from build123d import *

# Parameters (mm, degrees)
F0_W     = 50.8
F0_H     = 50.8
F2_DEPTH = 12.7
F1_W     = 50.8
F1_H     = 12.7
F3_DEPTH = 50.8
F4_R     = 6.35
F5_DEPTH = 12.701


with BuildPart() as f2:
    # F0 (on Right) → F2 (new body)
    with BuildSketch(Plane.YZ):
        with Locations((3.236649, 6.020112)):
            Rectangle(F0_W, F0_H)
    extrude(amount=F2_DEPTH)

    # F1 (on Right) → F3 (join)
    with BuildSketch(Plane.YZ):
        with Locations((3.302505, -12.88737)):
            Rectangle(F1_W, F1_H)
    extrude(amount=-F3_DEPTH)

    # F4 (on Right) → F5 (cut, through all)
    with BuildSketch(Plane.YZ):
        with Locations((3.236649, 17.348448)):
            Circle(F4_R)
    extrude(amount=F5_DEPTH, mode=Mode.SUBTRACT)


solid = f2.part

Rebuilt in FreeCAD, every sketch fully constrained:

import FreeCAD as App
import Part
import Sketcher
Q = App.Units.Quantity

doc = App.newDocument("Part")
body = doc.addObject("PartDesign::Body", "Body")

# Sketch on YZ plane
sketch1 = doc.addObject("Sketcher::SketchObject", "Sketch")
body.addObject(sketch1)
sketch1.AttachmentSupport = (doc.YZ_Plane, [""])
sketch1.MapMode = "FlatFace"
sketch1.addGeometry([
    Part.LineSegment(App.Vector(-22.163351, 31.420112, 0), App.Vector(-22.163351, -19.379888, 0)),
    Part.LineSegment(App.Vector(-22.163351, -19.379888, 0), App.Vector(28.636649, -19.379888, 0)),
    Part.LineSegment(App.Vector(28.636649, -19.379888, 0), App.Vector(28.636649, 31.420112, 0)),
    Part.LineSegment(App.Vector(28.636649, 31.420112, 0), App.Vector(-22.163351, 31.420112, 0)),
], False)
sketch1.addConstraint([
    Sketcher.Constraint("Coincident", 0, 2, 1, 1),
    Sketcher.Constraint("Coincident", 1, 2, 2, 1),
    Sketcher.Constraint("Coincident", 2, 2, 3, 1),
    Sketcher.Constraint("Coincident", 3, 2, 0, 1),
    Sketcher.Constraint("Vertical", 0),
    Sketcher.Constraint("Horizontal", 1),
    Sketcher.Constraint("Vertical", 2),
    Sketcher.Constraint("Horizontal", 3),
    Sketcher.Constraint("Equal", 3, 0),
    Sketcher.Constraint("DistanceX", 1, 1, 1, 2, Q("2 in")),
    Sketcher.Constraint("DistanceX", 0, 2, -1, 1, Q("22.163351 mm")),
    Sketcher.Constraint("DistanceY", 0, 2, -1, 1, Q("19.379888 mm")),
])
pad1 = doc.addObject("PartDesign::Pad", "Pad")
body.addObject(pad1)
pad1.Profile = sketch1
pad1.Length = Q("0.5 in")

# Sketch on YZ plane
sketch2 = doc.addObject("Sketcher::SketchObject", "Sketch001")
body.addObject(sketch2)
sketch2.AttachmentSupport = (doc.YZ_Plane, [""])
sketch2.MapMode = "FlatFace"
sketch2.addGeometry([
    Part.LineSegment(App.Vector(-22.097495, -6.53737, 0), App.Vector(-22.097495, -19.23737, 0)),
    Part.LineSegment(App.Vector(-22.097495, -19.23737, 0), App.Vector(28.702505, -19.23737, 0)),
    Part.LineSegment(App.Vector(28.702505, -19.23737, 0), App.Vector(28.702505, -6.53737, 0)),
    Part.LineSegment(App.Vector(28.702505, -6.53737, 0), App.Vector(-22.097495, -6.53737, 0)),
], False)
sketch2.addConstraint([
    Sketcher.Constraint("Coincident", 0, 2, 1, 1),
    Sketcher.Constraint("Coincident", 1, 2, 2, 1),
    Sketcher.Constraint("Coincident", 2, 2, 3, 1),
    Sketcher.Constraint("Coincident", 3, 2, 0, 1),
    Sketcher.Constraint("Vertical", 0),
    Sketcher.Constraint("Horizontal", 1),
    Sketcher.Constraint("Vertical", 2),
    Sketcher.Constraint("Horizontal", 3),
    Sketcher.Constraint("DistanceX", 1, 1, 1, 2, Q("2 in")),
    Sketcher.Constraint("DistanceY", 0, 2, 0, 1, Q("0.5 in")),
    Sketcher.Constraint("DistanceY", 0, 2, -1, 1, Q("19.23737 mm")),
    Sketcher.Constraint("DistanceX", 0, 2, -1, 1, Q("22.097495 mm")),
])
pad2 = doc.addObject("PartDesign::Pad", "Pad001")
body.addObject(pad2)
pad2.Profile = sketch2
pad2.Length = Q("2 in")
pad2.Reversed = True

# Sketch on YZ plane
sketch3 = doc.addObject("Sketcher::SketchObject", "Sketch002")
body.addObject(sketch3)
sketch3.AttachmentSupport = (doc.YZ_Plane, [""])
sketch3.MapMode = "FlatFace"
sketch3.addGeometry(Part.Circle(App.Vector(3.236649, 17.348448, 0), App.Vector(0, 0, 1), 6.35), False)
sketch3.addConstraint([
    Sketcher.Constraint("Diameter", 0, Q("0.5 in")),
    Sketcher.Constraint("DistanceX", -1, 1, 0, 3, Q("3.236649 mm")),
    Sketcher.Constraint("DistanceY", -1, 1, 0, 3, Q("17.348448 mm")),
])
pocket1 = doc.addObject("PartDesign::Pocket", "Pocket")
body.addObject(pocket1)
pocket1.Profile = sketch3
pocket1.Type = "ThroughAll"
pocket1.Reversed = True

doc.recompute()
